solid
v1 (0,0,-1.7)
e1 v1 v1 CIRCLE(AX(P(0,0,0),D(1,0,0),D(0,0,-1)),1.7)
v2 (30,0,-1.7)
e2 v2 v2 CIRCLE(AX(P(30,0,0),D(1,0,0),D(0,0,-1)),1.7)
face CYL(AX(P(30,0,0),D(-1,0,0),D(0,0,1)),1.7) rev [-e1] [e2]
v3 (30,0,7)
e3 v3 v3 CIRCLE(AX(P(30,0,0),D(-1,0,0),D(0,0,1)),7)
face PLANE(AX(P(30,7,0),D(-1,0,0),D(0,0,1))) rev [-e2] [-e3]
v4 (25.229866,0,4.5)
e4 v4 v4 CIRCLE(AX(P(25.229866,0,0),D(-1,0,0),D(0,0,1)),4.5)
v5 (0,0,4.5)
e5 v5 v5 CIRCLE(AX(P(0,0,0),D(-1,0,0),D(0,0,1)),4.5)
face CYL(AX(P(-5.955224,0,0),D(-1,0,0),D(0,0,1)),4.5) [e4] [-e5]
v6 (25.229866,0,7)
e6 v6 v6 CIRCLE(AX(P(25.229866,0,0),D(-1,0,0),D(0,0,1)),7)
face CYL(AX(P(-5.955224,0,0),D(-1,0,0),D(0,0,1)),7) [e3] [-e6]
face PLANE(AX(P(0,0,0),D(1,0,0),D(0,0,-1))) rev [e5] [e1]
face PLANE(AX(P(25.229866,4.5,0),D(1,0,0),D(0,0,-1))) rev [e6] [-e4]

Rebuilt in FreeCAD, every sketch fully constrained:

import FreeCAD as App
import Part
import Sketcher

doc = App.newDocument("Part")
params = doc.addObject("Spreadsheet::Sheet", "Params")
for row, (alias, value) in enumerate([
    ("sketch1_width", "30 mm"),
    ("sketch1_height", "7 mm"),
    ("sketch1_height2", "4.5 mm"),
    ("revolution_angle", "360 deg"),
    ("sketch2_diameter", "3.4 mm"),
], start=1):
    params.set(f"A{row}", alias)
    params.set(f"B{row}", "=" + value)
    params.setAlias(f"B{row}", alias)

body = doc.addObject("PartDesign::Body", "Body")

sketch1 = body.newObject("Sketcher::SketchObject", "Sketch")
sketch1.AttachmentSupport = (doc.getObject("XY_Plane"), [""])
sketch1.MapMode = "FlatFace"
sketch1.addGeometry([
    Part.LineSegment(App.Vector(0, 4.5, 0), App.Vector(0, 0, 0)),
    Part.LineSegment(App.Vector(0, 0, 0), App.Vector(30, 0, 0)),
    Part.LineSegment(App.Vector(30, 0, 0), App.Vector(30, 7, 0)),
    Part.LineSegment(App.Vector(30, 7, 0), App.Vector(25.2, 7, 0)),
    Part.LineSegment(App.Vector(25.2, 7, 0), App.Vector(25.2, 4.5, 0)),
    Part.LineSegment(App.Vector(25.2, 4.5, 0), App.Vector(0, 4.5, 0)),
], False)
sketch1.addConstraint([
    Sketcher.Constraint("Coincident", 0, 2, 1, 1),
    Sketcher.Constraint("Coincident", 1, 2, 2, 1),
    Sketcher.Constraint("Coincident", 2, 2, 3, 1),
    Sketcher.Constraint("Coincident", 3, 2, 4, 1),
    Sketcher.Constraint("Coincident", 4, 2, 5, 1),
    Sketcher.Constraint("Coincident", 5, 2, 0, 1),
    Sketcher.Constraint("Vertical", 0),
    Sketcher.Constraint("Horizontal", 1),
    Sketcher.Constraint("Vertical", 2),
    Sketcher.Constraint("Horizontal", 3),
    Sketcher.Constraint("Vertical", 4),
    Sketcher.Constraint("Horizontal", 5),
    Sketcher.Constraint("Coincident", 0, 2, -1, 1),
    Sketcher.Constraint("DistanceX", 1, 1, 1, 2, 30.0),
    Sketcher.Constraint("DistanceY", 2, 1, 2, 2, 7.0),
    Sketcher.Constraint("DistanceY", 0, 2, 0, 1, 4.5),
    Sketcher.Constraint("DistanceX", 3, 2, 3, 1, 4.770134),
])
sketch1.setExpression("Constraints[13]", "Params.sketch1_width")
sketch1.setExpression("Constraints[14]", "Params.sketch1_height")
sketch1.setExpression("Constraints[15]", "Params.sketch1_height2")
revolution = body.newObject("PartDesign::Revolution", "Revolution")
revolution.Profile = sketch1
revolution.ReferenceAxis = (sketch1, ["H_Axis"])
revolution.setExpression("Angle", "Params.revolution_angle")

sketch2 = body.newObject("Sketcher::SketchObject", "Sketch001")
sketch2.AttachmentSupport = (doc.getObject("YZ_Plane"), [""])
sketch2.MapMode = "FlatFace"
sketch2.addGeometry(Part.Circle(App.Vector(0, 0, 0), App.Vector(0, 0, 1), 1.7), False)
sketch2.addConstraint([
    Sketcher.Constraint("Coincident", 0, 3, -1, 1),
    Sketcher.Constraint("Diameter", 0, 3.4),
])
sketch2.setExpression("Constraints[1]", "Params.sketch2_diameter")
pocket1 = body.newObject("PartDesign::Pocket", "Pocket")
pocket1.Profile = sketch2
pocket1.Type = "ThroughAll"
pocket1.Reversed = True

doc.recompute()
